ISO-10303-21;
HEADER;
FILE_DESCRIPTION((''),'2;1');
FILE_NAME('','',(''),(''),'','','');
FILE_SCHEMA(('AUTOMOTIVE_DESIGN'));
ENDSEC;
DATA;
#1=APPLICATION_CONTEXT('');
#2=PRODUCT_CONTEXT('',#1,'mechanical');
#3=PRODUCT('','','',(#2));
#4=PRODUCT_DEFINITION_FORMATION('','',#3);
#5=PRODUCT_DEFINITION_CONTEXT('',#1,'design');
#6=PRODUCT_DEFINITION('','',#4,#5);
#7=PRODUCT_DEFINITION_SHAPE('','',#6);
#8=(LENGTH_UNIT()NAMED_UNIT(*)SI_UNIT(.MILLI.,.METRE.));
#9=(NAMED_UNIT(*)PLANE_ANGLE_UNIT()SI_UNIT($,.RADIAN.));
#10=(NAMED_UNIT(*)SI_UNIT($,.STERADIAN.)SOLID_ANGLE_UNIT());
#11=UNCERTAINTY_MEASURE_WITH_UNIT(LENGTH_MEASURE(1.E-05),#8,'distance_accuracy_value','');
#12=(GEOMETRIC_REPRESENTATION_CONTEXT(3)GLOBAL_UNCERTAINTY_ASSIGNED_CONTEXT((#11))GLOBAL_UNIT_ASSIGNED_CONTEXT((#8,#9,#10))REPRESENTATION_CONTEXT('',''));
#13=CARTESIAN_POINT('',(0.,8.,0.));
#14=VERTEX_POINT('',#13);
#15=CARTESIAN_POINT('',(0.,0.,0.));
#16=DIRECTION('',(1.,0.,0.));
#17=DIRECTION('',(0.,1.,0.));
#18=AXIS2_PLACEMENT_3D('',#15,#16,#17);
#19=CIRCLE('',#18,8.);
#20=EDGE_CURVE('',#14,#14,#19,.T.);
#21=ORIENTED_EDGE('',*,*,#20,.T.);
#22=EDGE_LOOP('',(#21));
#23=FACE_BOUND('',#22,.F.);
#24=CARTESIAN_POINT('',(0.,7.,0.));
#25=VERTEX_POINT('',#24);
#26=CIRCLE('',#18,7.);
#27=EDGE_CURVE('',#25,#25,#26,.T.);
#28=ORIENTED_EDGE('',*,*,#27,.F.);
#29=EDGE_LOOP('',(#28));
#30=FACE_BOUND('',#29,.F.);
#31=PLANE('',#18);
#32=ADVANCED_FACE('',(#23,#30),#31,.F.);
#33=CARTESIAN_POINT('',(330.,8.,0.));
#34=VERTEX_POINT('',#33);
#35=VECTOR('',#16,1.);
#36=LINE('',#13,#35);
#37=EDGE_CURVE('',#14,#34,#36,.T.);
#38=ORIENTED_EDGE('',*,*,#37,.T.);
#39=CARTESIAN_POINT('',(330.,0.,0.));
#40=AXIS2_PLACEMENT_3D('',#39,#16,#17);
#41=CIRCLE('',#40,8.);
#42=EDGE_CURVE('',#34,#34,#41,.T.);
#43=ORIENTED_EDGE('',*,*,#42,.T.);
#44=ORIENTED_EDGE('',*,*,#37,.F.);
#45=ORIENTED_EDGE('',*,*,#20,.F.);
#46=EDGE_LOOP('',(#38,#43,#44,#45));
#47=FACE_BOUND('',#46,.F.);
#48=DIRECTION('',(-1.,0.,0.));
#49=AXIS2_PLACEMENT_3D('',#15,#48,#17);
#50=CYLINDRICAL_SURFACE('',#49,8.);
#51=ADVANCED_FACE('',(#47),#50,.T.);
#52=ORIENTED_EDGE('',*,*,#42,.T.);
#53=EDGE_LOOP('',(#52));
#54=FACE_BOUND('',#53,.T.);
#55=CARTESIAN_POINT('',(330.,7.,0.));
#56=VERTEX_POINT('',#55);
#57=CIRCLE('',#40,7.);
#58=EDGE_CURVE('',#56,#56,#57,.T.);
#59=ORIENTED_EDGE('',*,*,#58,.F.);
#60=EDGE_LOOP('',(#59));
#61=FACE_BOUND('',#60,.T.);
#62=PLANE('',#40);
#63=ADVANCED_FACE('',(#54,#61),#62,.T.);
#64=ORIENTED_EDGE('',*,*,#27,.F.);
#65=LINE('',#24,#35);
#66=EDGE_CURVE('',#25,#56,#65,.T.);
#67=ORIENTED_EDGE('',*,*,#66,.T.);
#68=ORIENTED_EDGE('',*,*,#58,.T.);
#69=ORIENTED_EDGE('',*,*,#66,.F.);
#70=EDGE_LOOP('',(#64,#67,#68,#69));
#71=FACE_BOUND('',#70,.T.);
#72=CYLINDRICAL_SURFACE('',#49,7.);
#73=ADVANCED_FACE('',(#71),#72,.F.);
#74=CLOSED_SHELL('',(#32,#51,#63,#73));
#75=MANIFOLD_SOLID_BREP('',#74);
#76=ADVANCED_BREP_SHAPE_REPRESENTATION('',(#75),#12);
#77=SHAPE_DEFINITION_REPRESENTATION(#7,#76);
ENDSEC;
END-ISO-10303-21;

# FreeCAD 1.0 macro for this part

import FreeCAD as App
import Part
import Sketcher

V = App.Vector

doc = App.newDocument("Part")
body = doc.addObject("PartDesign::Body", "Body")

# Sketch on YZ plane
sketch1 = doc.addObject("Sketcher::SketchObject", "Sketch")
body.addObject(sketch1)
sketch1.AttachmentSupport = (doc.YZ_Plane, [""])
sketch1.MapMode = "FlatFace"
sketch1.addGeometry([
    Part.Circle(V(0, 0, 0), V(0, 0, 1), 8),
    Part.Circle(V(0, 0, 0), V(0, 0, 1), 7),
], False)
sketch1.addConstraint([
    Sketcher.Constraint("Coincident", 0, 3, -1, 1),
    Sketcher.Constraint("Coincident", 1, 3, -1, 1),
    Sketcher.Constraint("Diameter", 0, 16.0),
    Sketcher.Constraint("Diameter", 1, 14.0),
])
pad1 = doc.addObject("PartDesign::Pad", "Pad")
body.addObject(pad1)
pad1.Profile = sketch1
pad1.Length = 330

doc.recompute()
